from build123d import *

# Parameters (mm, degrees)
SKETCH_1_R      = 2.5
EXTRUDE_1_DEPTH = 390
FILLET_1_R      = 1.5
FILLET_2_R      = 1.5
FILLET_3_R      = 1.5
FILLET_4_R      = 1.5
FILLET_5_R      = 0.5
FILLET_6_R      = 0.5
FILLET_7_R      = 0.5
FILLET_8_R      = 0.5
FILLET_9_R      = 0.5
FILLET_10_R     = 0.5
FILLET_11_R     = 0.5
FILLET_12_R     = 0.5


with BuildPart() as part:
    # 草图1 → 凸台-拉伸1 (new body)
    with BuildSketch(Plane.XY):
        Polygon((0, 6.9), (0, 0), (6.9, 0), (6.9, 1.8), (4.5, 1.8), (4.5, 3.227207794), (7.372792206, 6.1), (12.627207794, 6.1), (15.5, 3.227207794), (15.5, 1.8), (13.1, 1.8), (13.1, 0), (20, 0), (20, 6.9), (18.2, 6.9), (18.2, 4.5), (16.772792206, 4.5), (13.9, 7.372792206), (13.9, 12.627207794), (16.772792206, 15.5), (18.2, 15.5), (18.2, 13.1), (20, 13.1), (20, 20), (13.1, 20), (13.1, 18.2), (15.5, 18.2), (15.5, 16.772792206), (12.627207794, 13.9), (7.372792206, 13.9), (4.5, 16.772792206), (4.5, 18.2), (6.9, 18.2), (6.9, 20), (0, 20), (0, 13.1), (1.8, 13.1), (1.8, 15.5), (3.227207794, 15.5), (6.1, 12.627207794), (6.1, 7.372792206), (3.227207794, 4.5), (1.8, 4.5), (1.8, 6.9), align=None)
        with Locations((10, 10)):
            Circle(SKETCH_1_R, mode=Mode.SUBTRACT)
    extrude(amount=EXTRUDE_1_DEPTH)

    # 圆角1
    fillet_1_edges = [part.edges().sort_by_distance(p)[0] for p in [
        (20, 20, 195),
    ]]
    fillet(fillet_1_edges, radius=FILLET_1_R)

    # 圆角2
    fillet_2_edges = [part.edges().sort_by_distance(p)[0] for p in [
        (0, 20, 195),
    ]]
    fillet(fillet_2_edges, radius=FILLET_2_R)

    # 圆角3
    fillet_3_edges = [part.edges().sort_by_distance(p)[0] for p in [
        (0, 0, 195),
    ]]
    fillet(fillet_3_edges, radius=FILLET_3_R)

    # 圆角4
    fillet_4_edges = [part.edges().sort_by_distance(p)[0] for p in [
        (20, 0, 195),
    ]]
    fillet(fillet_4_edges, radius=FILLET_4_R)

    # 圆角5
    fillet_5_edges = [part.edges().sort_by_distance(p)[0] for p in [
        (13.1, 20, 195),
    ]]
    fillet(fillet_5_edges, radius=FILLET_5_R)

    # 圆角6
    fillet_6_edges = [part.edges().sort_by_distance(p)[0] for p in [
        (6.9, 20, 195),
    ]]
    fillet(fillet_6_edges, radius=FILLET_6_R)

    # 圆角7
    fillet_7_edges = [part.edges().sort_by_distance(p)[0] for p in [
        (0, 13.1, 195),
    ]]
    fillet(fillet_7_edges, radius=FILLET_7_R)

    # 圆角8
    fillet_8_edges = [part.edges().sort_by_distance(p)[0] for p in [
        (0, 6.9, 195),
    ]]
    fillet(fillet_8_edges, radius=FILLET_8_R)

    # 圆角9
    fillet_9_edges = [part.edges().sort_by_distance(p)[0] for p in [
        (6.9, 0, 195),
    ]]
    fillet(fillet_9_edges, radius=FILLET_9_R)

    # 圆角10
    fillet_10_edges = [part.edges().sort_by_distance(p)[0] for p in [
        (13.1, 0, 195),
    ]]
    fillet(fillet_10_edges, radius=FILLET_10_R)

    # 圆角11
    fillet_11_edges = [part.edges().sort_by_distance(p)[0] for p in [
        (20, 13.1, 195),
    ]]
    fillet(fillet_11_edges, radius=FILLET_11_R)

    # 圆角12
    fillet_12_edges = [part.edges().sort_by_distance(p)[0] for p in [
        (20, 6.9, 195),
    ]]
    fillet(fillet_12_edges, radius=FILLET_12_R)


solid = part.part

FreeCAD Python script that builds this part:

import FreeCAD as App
import Part
import Sketcher
from FreeCAD import Vector
Q = App.Units.Quantity


def edges_at(feature, points):
    """Names of the edges that pass closest to the given points."""
    edges = feature.Shape.Edges
    near = lambda p: min(range(len(edges)), key=lambda i: edges[i].distToShape(Part.Vertex(*p))[0])
    return sorted({f"Edge{near(p) + 1}" for p in points})

doc = App.newDocument("Part")
params = doc.addObject("Spreadsheet::Sheet", "Params")
for row, (alias, value) in enumerate([
    ("sketch1_diameter", "5 mm"),
    ("sketch1_width", "6.9 mm"),
    ("sketch1_width2", "2.4 mm"),
    ("sketch1_width3", "1.8 mm"),
    ("pad1_length", "390 mm"),
    ("fillet_radius", "1.5 mm"),
    ("fillet2_radius", "1.5 mm"),
    ("fillet3_radius", "1.5 mm"),
    ("fillet4_radius", "1.5 mm"),
    ("fillet5_radius", "0.5 mm"),
    ("fillet6_radius", "0.5 mm"),
    ("fillet7_radius", "0.5 mm"),
    ("fillet8_radius", "0.5 mm"),
    ("fillet9_radius", "0.5 mm"),
    ("fillet10_radius", "0.5 mm"),
    ("fillet11_radius", "0.5 mm"),
    ("fillet12_radius", "0.5 mm"),
], start=1):
    params.set(f"A{row}", alias)
    params.set(f"B{row}", "=" + value)
    params.setAlias(f"B{row}", alias)

body = doc.addObject("PartDesign::Body", "Body")

# Sketch on XY plane
sketch1 = body.newObject("Sketcher::SketchObject", "Sketch")
sketch1.AttachmentSupport = (doc.getObject("XY_Plane"), [""])
sketch1.MapMode = "FlatFace"
sketch1.addGeometry([
    Part.LineSegment(Vector(0, 6.9, 0), Vector(0, 0, 0)),  # 0
    Part.LineSegment(Vector(0, 0, 0), Vector(6.9, 0, 0)),  # 1
    Part.LineSegment(Vector(6.9, 0, 0), Vector(6.9, 1.8, 0)),  # 2
    Part.LineSegment(Vector(6.9, 1.8, 0), Vector(4.5, 1.8, 0)),  # 3
    Part.LineSegment(Vector(4.5, 1.8, 0), Vector(4.5, 3.2, 0)),  # 4
    Part.LineSegment(Vector(4.5, 3.2, 0), Vector(7.4, 6.1, 0)),  # 5
    Part.LineSegment(Vector(7.4, 6.1, 0), Vector(12.6, 6.1, 0)),  # 6
    Part.LineSegment(Vector(12.6, 6.1, 0), Vector(15.5, 3.2, 0)),  # 7
    Part.LineSegment(Vector(15.5, 3.2, 0), Vector(15.5, 1.8, 0)),  # 8
    Part.LineSegment(Vector(15.5, 1.8, 0), Vector(13.1, 1.8, 0)),  # 9
    Part.LineSegment(Vector(13.1, 1.8, 0), Vector(13.1, 0, 0)),  # 10
    Part.LineSegment(Vector(13.1, 0, 0), Vector(20, 0, 0)),  # 11
    Part.LineSegment(Vector(20, 0, 0), Vector(20, 6.9, 0)),  # 12
    Part.LineSegment(Vector(20, 6.9, 0), Vector(18.2, 6.9, 0)),  # 13
    Part.LineSegment(Vector(18.2, 6.9, 0), Vector(18.2, 4.5, 0)),  # 14
    Part.LineSegment(Vector(18.2, 4.5, 0), Vector(16.8, 4.5, 0)),  # 15
    Part.LineSegment(Vector(16.8, 4.5, 0), Vector(13.9, 7.4, 0)),  # 16
    Part.LineSegment(Vector(13.9, 7.4, 0), Vector(13.9, 12.6, 0)),  # 17
    Part.LineSegment(Vector(13.9, 12.6, 0), Vector(16.8, 15.5, 0)),  # 18
    Part.LineSegment(Vector(16.8, 15.5, 0), Vector(18.2, 15.5, 0)),  # 19
    Part.LineSegment(Vector(18.2, 15.5, 0), Vector(18.2, 13.1, 0)),  # 20
    Part.LineSegment(Vector(18.2, 13.1, 0), Vector(20, 13.1, 0)),  # 21
    Part.LineSegment(Vector(20, 13.1, 0), Vector(20, 20, 0)),  # 22
    Part.LineSegment(Vector(20, 20, 0), Vector(13.1, 20, 0)),  # 23
    Part.LineSegment(Vector(13.1, 20, 0), Vector(13.1, 18.2, 0)),  # 24
    Part.LineSegment(Vector(13.1, 18.2, 0), Vector(15.5, 18.2, 0)),  # 25
    Part.LineSegment(Vector(15.5, 18.2, 0), Vector(15.5, 16.8, 0)),  # 26
    Part.LineSegment(Vector(15.5, 16.8, 0), Vector(12.6, 13.9, 0)),  # 27
    Part.LineSegment(Vector(12.6, 13.9, 0), Vector(7.4, 13.9, 0)),  # 28
    Part.LineSegment(Vector(7.4, 13.9, 0), Vector(4.5, 16.8, 0)),  # 29
    Part.LineSegment(Vector(4.5, 16.8, 0), Vector(4.5, 18.2, 0)),  # 30
    Part.LineSegment(Vector(4.5, 18.2, 0), Vector(6.9, 18.2, 0)),  # 31
    Part.LineSegment(Vector(6.9, 18.2, 0), Vector(6.9, 20, 0)),  # 32
    Part.LineSegment(Vector(6.9, 20, 0), Vector(0, 20, 0)),  # 33
    Part.LineSegment(Vector(0, 20, 0), Vector(0, 13.1, 0)),  # 34
    Part.LineSegment(Vector(0, 13.1, 0), Vector(1.8, 13.1, 0)),  # 35
    Part.LineSegment(Vector(1.8, 13.1, 0), Vector(1.8, 15.5, 0)),  # 36
    Part.LineSegment(Vector(1.8, 15.5, 0), Vector(3.2, 15.5, 0)),  # 37
    Part.LineSegment(Vector(3.2, 15.5, 0), Vector(6.1, 12.6, 0)),  # 38
    Part.LineSegment(Vector(6.1, 12.6, 0), Vector(6.1, 7.4, 0)),  # 39
    Part.LineSegment(Vector(6.1, 7.4, 0), Vector(3.2, 4.5, 0)),  # 40
    Part.LineSegment(Vector(3.2, 4.5, 0), Vector(1.8, 4.5, 0)),  # 41
    Part.LineSegment(Vector(1.8, 4.5, 0), Vector(1.8, 6.9, 0)),  # 42
    Part.LineSegment(Vector(1.8, 6.9, 0), Vector(0, 6.9, 0)),  # 43
    Part.Circle(Vector(10, 10, 0), Vector(0, 0, 1), 2.5),  # 44
], False)
sketch1.addConstraint([
    Sketcher.Constraint("Coincident", 0, 2, 1, 1),
    Sketcher.Constraint("Coincident", 1, 2, 2, 1),
    Sketcher.Constraint("Coincident", 2, 2, 3, 1),
    Sketcher.Constraint("Coincident", 3, 2, 4, 1),
    Sketcher.Constraint("Coincident", 4, 2, 5, 1),
    Sketcher.Constraint("Coincident", 5, 2, 6, 1),
    Sketcher.Constraint("Coincident", 6, 2, 7, 1),
    Sketcher.Constraint("Coincident", 7, 2, 8, 1),
    Sketcher.Constraint("Coincident", 8, 2, 9, 1),
    Sketcher.Constraint("Coincident", 9, 2, 10, 1),
    Sketcher.Constraint("Coincident", 10, 2, 11, 1),
    Sketcher.Constraint("Coincident", 11, 2, 12, 1),
    Sketcher.Constraint("Coincident", 12, 2, 13, 1),
    Sketcher.Constraint("Coincident", 13, 2, 14, 1),
    Sketcher.Constraint("Coincident", 14, 2, 15, 1),
    Sketcher.Constraint("Coincident", 15, 2, 16, 1),
    Sketcher.Constraint("Coincident", 16, 2, 17, 1),
    Sketcher.Constraint("Coincident", 17, 2, 18, 1),
    Sketcher.Constraint("Coincident", 18, 2, 19, 1),
    Sketcher.Constraint("Coincident", 19, 2, 20, 1),
    Sketcher.Constraint("Coincident", 20, 2, 21, 1),
    Sketcher.Constraint("Coincident", 21, 2, 22, 1),
    Sketcher.Constraint("Coincident", 22, 2, 23, 1),
    Sketcher.Constraint("Coincident", 23, 2, 24, 1),
    Sketcher.Constraint("Coincident", 24, 2, 25, 1),
    Sketcher.Constraint("Coincident", 25, 2, 26, 1),
    Sketcher.Constraint("Coincident", 26, 2, 27, 1),
    Sketcher.Constraint("Coincident", 27, 2, 28, 1),
    Sketcher.Constraint("Coincident", 28, 2, 29, 1),
    Sketcher.Constraint("Coincident", 29, 2, 30, 1),
    Sketcher.Constraint("Coincident", 30, 2, 31, 1),
    Sketcher.Constraint("Coincident", 31, 2, 32, 1),
    Sketcher.Constraint("Coincident", 32, 2, 33, 1),
    Sketcher.Constraint("Coincident", 33, 2, 34, 1),
    Sketcher.Constraint("Coincident", 34, 2, 35, 1),
    Sketcher.Constraint("Coincident", 35, 2, 36, 1),
    Sketcher.Constraint("Coincident", 36, 2, 37, 1),
    Sketcher.Constraint("Coincident", 37, 2, 38, 1),
    Sketcher.Constraint("Coincident", 38, 2, 39, 1),
    Sketcher.Constraint("Coincident", 39, 2, 40, 1),
    Sketcher.Constraint("Coincident", 40, 2, 41, 1),
    Sketcher.Constraint("Coincident", 41, 2, 42, 1),
    Sketcher.Constraint("Coincident", 42, 2, 43, 1),
    Sketcher.Constraint("Coincident", 43, 2, 0, 1),
    Sketcher.Constraint("Vertical", 0),
    Sketcher.Constraint("Horizontal", 1),
    Sketcher.Constraint("Vertical", 2),
    Sketcher.Constraint("Horizontal", 3),
    Sketcher.Constraint("Vertical", 4),
    Sketcher.Constraint("Horizontal", 6),
    Sketcher.Constraint("Vertical", 8),
    Sketcher.Constraint("Horizontal", 9),
    Sketcher.Constraint("Vertical", 10),
    Sketcher.Constraint("Horizontal", 11),
    Sketcher.Constraint("Vertical", 12),
    Sketcher.Constraint("Horizontal", 13),
    Sketcher.Constraint("Vertical", 14),
    Sketcher.Constraint("Horizontal", 15),
    Sketcher.Constraint("Vertical", 17),
    Sketcher.Constraint("Horizontal", 19),
    Sketcher.Constraint("Vertical", 20),
    Sketcher.Constraint("Horizontal", 21),
    Sketcher.Constraint("Vertical", 22),
    Sketcher.Constraint("Horizontal", 23),
    Sketcher.Constraint("Vertical", 24),
    Sketcher.Constraint("Horizontal", 25),
    Sketcher.Constraint("Vertical", 26),
    Sketcher.Constraint("Horizontal", 28),
    Sketcher.Constraint("Vertical", 30),
    Sketcher.Constraint("Horizontal", 31),
    Sketcher.Constraint("Vertical", 32),
    Sketcher.Constraint("Horizontal", 33),
    Sketcher.Constraint("Vertical", 34),
    Sketcher.Constraint("Horizontal", 35),
    Sketcher.Constraint("Vertical", 36),
    Sketcher.Constraint("Horizontal", 37),
    Sketcher.Constraint("Vertical", 39),
    Sketcher.Constraint("Horizontal", 41),
    Sketcher.Constraint("Vertical", 42),
    Sketcher.Constraint("Horizontal", 43),
    Sketcher.Constraint("Coincident", 0, 2, -1, 1),
    Sketcher.Constraint("PointOnObject", 10, 2, -1),
    Sketcher.Constraint("PointOnObject", 33, 2, -2),
    Sketcher.Constraint("Perpendicular", 5, 7),
    Sketcher.Constraint("Parallel", 7, 16),
    Sketcher.Constraint("Perpendicular", 16, 18),
    Sketcher.Constraint("Parallel", 18, 27),
    Sketcher.Constraint("Perpendicular", 27, 29),
    Sketcher.Constraint("Parallel", 29, 38),
    Sketcher.Constraint("Perpendicular", 38, 40),
    Sketcher.Constraint("Horizontal", 4, 2, 7, 2),
    Sketcher.Constraint("Horizontal", 3, 2, 8, 2),
    Sketcher.Constraint("Horizontal", 26, 2, 29, 2),
    Sketcher.Constraint("Horizontal", 25, 2, 30, 2),
    Sketcher.Constraint("Horizontal", 23, 2, 32, 2),
    Sketcher.Constraint("Horizontal", 21, 2, 34, 2),
    Sketcher.Constraint("Horizontal", 19, 2, 36, 2),
    Sketcher.Constraint("Horizontal", 17, 2, 38, 2),
    Sketcher.Constraint("Horizontal", 16, 2, 39, 2),
    Sketcher.Constraint("Horizontal", 15, 2, 40, 2),
    Sketcher.Constraint("Horizontal", 13, 2, 42, 2),
    Sketcher.Constraint("Vertical", 15, 2, 18, 2),
    Sketcher.Constraint("Vertical", 14, 2, 19, 2),
    Sketcher.Constraint("Vertical", 12, 2, 21, 2),
    Sketcher.Constraint("Vertical", 10, 2, 23, 2),
    Sketcher.Constraint("Vertical", 8, 2, 25, 2),
    Sketcher.Constraint("Vertical", 6, 2, 27, 2),
    Sketcher.Constraint("Vertical", 5, 2, 28, 2),
    Sketcher.Constraint("Vertical", 4, 2, 29, 2),
    Sketcher.Constraint("Vertical", 2, 2, 31, 2),
    Sketcher.Constraint("Vertical", 36, 2, 41, 2),
    Sketcher.Constraint("Equal", 3, 9),
    Sketcher.Constraint("Equal", 1, 11),
    Sketcher.Constraint("Equal", 21, 35),
    Sketcher.Constraint("Equal", 19, 37),
    Sketcher.Constraint("Equal", 33, 0),
    Sketcher.Constraint("Equal", 43, 2),
    Sketcher.Constraint("Equal", 41, 4),
    Sketcher.Constraint("Equal", 31, 14),
    Sketcher.Constraint("Equal", 28, 17),
    Sketcher.Constraint("Equal", 14, 20),
    Sketcher.Constraint("Equal", 12, 22),
    Sketcher.Constraint("Equal", 10, 24),
    Sketcher.Constraint("Equal", 8, 26),
    Sketcher.Constraint("Equal", 7, 16),
    Sketcher.Constraint("Diameter", 44, Q("5 mm")),
    Sketcher.Constraint("DistanceX", 1, 1, 1, 2, Q("6.9 mm")),
    Sketcher.Constraint("DistanceX", 3, 2, 3, 1, Q("2.4 mm")),
    Sketcher.Constraint("DistanceX", 13, 2, 13, 1, Q("1.8 mm")),
    Sketcher.Constraint("DistanceX", -1, 1, 44, 3, Q("10 mm")),
    Sketcher.Constraint("DistanceY", -1, 1, 44, 3, Q("10 mm")),
    Sketcher.Constraint("DistanceX", -1, 1, 11, 2, Q("20 mm")),
    Sketcher.Constraint("DistanceY", -1, 1, 5, 2, Q("6.1 mm")),
    Sketcher.Constraint("Distance", 5, Q("4.062742 mm")),
])
sketch1.setExpression("Constraints[125]", "Params.sketch1_diameter")
sketch1.setExpression("Constraints[126]", "Params.sketch1_width")
sketch1.setExpression("Constraints[127]", "Params.sketch1_width2")
sketch1.setExpression("Constraints[128]", "Params.sketch1_width3")
pad1 = body.newObject("PartDesign::Pad", "Pad")
pad1.Profile = sketch1
pad1.setExpression("Length", "Params.pad1_length")
doc.recompute()

fillet = body.newObject("PartDesign::Fillet", "Fillet")
fillet.Base = (pad1, edges_at(pad1, [(20, 20, 195)]))
fillet.setExpression("Radius", "Params.fillet_radius")
doc.recompute()

fillet2 = body.newObject("PartDesign::Fillet", "Fillet001")
fillet2.Base = (fillet, edges_at(fillet, [(0, 20, 195)]))
fillet2.setExpression("Radius", "Params.fillet2_radius")
doc.recompute()

fillet3 = body.newObject("PartDesign::Fillet", "Fillet002")
fillet3.Base = (fillet2, edges_at(fillet2, [(0, 0, 195)]))
fillet3.setExpression("Radius", "Params.fillet3_radius")
doc.recompute()

fillet4 = body.newObject("PartDesign::Fillet", "Fillet003")
fillet4.Base = (fillet3, edges_at(fillet3, [(20, 0, 195)]))
fillet4.setExpression("Radius", "Params.fillet4_radius")
doc.recompute()

fillet5 = body.newObject("PartDesign::Fillet", "Fillet004")
fillet5.Base = (fillet4, edges_at(fillet4, [(13.1, 20, 195)]))
fillet5.setExpression("Radius", "Params.fillet5_radius")
doc.recompute()

fillet6 = body.newObject("PartDesign::Fillet", "Fillet005")
fillet6.Base = (fillet5, edges_at(fillet5, [(6.9, 20, 195)]))
fillet6.setExpression("Radius", "Params.fillet6_radius")
doc.recompute()

fillet7 = body.newObject("PartDesign::Fillet", "Fillet006")
fillet7.Base = (fillet6, edges_at(fillet6, [(0, 13.1, 195)]))
fillet7.setExpression("Radius", "Params.fillet7_radius")
doc.recompute()

fillet8 = body.newObject("PartDesign::Fillet", "Fillet007")
fillet8.Base = (fillet7, edges_at(fillet7, [(0, 6.9, 195)]))
fillet8.setExpression("Radius", "Params.fillet8_radius")
doc.recompute()

fillet9 = body.newObject("PartDesign::Fillet", "Fillet008")
fillet9.Base = (fillet8, edges_at(fillet8, [(6.9, 0, 195)]))
fillet9.setExpression("Radius", "Params.fillet9_radius")
doc.recompute()

fillet10 = body.newObject("PartDesign::Fillet", "Fillet009")
fillet10.Base = (fillet9, edges_at(fillet9, [(13.1, 0, 195)]))
fillet10.setExpression("Radius", "Params.fillet10_radius")
doc.recompute()

fillet11 = body.newObject("PartDesign::Fillet", "Fillet010")
fillet11.Base = (fillet10, edges_at(fillet10, [(20, 13.1, 195)]))
fillet11.setExpression("Radius", "Params.fillet11_radius")
doc.recompute()

fillet12 = body.newObject("PartDesign::Fillet", "Fillet011")
fillet12.Base = (fillet11, edges_at(fillet11, [(20, 6.9, 195)]))
fillet12.setExpression("Radius", "Params.fillet12_radius")

doc.recompute()
